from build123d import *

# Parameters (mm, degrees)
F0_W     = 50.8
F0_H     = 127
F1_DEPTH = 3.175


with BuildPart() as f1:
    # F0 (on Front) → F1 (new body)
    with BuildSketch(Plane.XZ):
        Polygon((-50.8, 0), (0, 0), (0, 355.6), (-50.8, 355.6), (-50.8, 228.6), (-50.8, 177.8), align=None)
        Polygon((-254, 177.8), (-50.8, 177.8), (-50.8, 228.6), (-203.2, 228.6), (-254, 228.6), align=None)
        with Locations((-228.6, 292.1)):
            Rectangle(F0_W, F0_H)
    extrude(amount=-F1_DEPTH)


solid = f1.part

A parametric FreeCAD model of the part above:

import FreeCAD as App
import Part
import Sketcher
from FreeCAD import Vector
Q = App.Units.Quantity


def add_polygon(sketch, points):
    """Adds a closed chain of lines whose ends are joined by coincident constraints."""
    first, n = sketch.GeometryCount, len(points)
    for a, b in zip(points, points[1:] + points[:1]):
        sketch.addGeometry(Part.LineSegment(App.Vector(*a, 0), App.Vector(*b, 0)), False)
    for i in range(n):
        sketch.addConstraint(Sketcher.Constraint("Coincident", first + i, 2, first + (i + 1) % n, 1))

doc = App.newDocument("Part")
body = doc.addObject("PartDesign::Body", "Body")

sketch1 = body.newObject("Sketcher::SketchObject", "Sketch")
sketch1.AttachmentSupport = (doc.getObject("XZ_Plane"), [""])
sketch1.MapMode = "FlatFace"
add_polygon(sketch1, [(-51, 0), (0, 0), (0, 356), (-51, 356), (-51, 229), (-203, 229), (-203, 356), (-254, 356), (-254, 178), (-51, 178)])
sketch1.addConstraint(Sketcher.Constraint("Horizontal", 0))
sketch1.addConstraint(Sketcher.Constraint("Vertical", 1))
sketch1.addConstraint(Sketcher.Constraint("Horizontal", 2))
sketch1.addConstraint(Sketcher.Constraint("Vertical", 3))
sketch1.addConstraint(Sketcher.Constraint("Horizontal", 4))
sketch1.addConstraint(Sketcher.Constraint("Vertical", 5))
sketch1.addConstraint(Sketcher.Constraint("Horizontal", 6))
sketch1.addConstraint(Sketcher.Constraint("Vertical", 7))
sketch1.addConstraint(Sketcher.Constraint("Horizontal", 8))
sketch1.addConstraint(Sketcher.Constraint("Vertical", 9))
sketch1.addConstraint(Sketcher.Constraint("Coincident", 0, 2, -1, 1))
sketch1.addConstraint(Sketcher.Constraint("Horizontal", 2, 2, 5, 2))
sketch1.addConstraint(Sketcher.Constraint("Vertical", 3, 2, 8, 2))
sketch1.addConstraint(Sketcher.Constraint("Equal", 2, 6))
sketch1.addConstraint(Sketcher.Constraint("Equal", 7, 9))
sketch1.addConstraint(Sketcher.Constraint("DistanceX", 0, 1, 0, 2, Q("2 in")))
sketch1.addConstraint(Sketcher.Constraint("DistanceX", 4, 2, 4, 1, Q("6 in")))
sketch1.addConstraint(Sketcher.Constraint("DistanceY", 1, 1, 1, 2, Q("14 in")))
sketch1.addConstraint(Sketcher.Constraint("DistanceY", 3, 2, 3, 1, Q("5 in")))
pad1 = body.newObject("PartDesign::Pad", "Pad")
pad1.Profile = sketch1
pad1.Length = Q("0.125 in")
pad1.Reversed = True

doc.recompute()
